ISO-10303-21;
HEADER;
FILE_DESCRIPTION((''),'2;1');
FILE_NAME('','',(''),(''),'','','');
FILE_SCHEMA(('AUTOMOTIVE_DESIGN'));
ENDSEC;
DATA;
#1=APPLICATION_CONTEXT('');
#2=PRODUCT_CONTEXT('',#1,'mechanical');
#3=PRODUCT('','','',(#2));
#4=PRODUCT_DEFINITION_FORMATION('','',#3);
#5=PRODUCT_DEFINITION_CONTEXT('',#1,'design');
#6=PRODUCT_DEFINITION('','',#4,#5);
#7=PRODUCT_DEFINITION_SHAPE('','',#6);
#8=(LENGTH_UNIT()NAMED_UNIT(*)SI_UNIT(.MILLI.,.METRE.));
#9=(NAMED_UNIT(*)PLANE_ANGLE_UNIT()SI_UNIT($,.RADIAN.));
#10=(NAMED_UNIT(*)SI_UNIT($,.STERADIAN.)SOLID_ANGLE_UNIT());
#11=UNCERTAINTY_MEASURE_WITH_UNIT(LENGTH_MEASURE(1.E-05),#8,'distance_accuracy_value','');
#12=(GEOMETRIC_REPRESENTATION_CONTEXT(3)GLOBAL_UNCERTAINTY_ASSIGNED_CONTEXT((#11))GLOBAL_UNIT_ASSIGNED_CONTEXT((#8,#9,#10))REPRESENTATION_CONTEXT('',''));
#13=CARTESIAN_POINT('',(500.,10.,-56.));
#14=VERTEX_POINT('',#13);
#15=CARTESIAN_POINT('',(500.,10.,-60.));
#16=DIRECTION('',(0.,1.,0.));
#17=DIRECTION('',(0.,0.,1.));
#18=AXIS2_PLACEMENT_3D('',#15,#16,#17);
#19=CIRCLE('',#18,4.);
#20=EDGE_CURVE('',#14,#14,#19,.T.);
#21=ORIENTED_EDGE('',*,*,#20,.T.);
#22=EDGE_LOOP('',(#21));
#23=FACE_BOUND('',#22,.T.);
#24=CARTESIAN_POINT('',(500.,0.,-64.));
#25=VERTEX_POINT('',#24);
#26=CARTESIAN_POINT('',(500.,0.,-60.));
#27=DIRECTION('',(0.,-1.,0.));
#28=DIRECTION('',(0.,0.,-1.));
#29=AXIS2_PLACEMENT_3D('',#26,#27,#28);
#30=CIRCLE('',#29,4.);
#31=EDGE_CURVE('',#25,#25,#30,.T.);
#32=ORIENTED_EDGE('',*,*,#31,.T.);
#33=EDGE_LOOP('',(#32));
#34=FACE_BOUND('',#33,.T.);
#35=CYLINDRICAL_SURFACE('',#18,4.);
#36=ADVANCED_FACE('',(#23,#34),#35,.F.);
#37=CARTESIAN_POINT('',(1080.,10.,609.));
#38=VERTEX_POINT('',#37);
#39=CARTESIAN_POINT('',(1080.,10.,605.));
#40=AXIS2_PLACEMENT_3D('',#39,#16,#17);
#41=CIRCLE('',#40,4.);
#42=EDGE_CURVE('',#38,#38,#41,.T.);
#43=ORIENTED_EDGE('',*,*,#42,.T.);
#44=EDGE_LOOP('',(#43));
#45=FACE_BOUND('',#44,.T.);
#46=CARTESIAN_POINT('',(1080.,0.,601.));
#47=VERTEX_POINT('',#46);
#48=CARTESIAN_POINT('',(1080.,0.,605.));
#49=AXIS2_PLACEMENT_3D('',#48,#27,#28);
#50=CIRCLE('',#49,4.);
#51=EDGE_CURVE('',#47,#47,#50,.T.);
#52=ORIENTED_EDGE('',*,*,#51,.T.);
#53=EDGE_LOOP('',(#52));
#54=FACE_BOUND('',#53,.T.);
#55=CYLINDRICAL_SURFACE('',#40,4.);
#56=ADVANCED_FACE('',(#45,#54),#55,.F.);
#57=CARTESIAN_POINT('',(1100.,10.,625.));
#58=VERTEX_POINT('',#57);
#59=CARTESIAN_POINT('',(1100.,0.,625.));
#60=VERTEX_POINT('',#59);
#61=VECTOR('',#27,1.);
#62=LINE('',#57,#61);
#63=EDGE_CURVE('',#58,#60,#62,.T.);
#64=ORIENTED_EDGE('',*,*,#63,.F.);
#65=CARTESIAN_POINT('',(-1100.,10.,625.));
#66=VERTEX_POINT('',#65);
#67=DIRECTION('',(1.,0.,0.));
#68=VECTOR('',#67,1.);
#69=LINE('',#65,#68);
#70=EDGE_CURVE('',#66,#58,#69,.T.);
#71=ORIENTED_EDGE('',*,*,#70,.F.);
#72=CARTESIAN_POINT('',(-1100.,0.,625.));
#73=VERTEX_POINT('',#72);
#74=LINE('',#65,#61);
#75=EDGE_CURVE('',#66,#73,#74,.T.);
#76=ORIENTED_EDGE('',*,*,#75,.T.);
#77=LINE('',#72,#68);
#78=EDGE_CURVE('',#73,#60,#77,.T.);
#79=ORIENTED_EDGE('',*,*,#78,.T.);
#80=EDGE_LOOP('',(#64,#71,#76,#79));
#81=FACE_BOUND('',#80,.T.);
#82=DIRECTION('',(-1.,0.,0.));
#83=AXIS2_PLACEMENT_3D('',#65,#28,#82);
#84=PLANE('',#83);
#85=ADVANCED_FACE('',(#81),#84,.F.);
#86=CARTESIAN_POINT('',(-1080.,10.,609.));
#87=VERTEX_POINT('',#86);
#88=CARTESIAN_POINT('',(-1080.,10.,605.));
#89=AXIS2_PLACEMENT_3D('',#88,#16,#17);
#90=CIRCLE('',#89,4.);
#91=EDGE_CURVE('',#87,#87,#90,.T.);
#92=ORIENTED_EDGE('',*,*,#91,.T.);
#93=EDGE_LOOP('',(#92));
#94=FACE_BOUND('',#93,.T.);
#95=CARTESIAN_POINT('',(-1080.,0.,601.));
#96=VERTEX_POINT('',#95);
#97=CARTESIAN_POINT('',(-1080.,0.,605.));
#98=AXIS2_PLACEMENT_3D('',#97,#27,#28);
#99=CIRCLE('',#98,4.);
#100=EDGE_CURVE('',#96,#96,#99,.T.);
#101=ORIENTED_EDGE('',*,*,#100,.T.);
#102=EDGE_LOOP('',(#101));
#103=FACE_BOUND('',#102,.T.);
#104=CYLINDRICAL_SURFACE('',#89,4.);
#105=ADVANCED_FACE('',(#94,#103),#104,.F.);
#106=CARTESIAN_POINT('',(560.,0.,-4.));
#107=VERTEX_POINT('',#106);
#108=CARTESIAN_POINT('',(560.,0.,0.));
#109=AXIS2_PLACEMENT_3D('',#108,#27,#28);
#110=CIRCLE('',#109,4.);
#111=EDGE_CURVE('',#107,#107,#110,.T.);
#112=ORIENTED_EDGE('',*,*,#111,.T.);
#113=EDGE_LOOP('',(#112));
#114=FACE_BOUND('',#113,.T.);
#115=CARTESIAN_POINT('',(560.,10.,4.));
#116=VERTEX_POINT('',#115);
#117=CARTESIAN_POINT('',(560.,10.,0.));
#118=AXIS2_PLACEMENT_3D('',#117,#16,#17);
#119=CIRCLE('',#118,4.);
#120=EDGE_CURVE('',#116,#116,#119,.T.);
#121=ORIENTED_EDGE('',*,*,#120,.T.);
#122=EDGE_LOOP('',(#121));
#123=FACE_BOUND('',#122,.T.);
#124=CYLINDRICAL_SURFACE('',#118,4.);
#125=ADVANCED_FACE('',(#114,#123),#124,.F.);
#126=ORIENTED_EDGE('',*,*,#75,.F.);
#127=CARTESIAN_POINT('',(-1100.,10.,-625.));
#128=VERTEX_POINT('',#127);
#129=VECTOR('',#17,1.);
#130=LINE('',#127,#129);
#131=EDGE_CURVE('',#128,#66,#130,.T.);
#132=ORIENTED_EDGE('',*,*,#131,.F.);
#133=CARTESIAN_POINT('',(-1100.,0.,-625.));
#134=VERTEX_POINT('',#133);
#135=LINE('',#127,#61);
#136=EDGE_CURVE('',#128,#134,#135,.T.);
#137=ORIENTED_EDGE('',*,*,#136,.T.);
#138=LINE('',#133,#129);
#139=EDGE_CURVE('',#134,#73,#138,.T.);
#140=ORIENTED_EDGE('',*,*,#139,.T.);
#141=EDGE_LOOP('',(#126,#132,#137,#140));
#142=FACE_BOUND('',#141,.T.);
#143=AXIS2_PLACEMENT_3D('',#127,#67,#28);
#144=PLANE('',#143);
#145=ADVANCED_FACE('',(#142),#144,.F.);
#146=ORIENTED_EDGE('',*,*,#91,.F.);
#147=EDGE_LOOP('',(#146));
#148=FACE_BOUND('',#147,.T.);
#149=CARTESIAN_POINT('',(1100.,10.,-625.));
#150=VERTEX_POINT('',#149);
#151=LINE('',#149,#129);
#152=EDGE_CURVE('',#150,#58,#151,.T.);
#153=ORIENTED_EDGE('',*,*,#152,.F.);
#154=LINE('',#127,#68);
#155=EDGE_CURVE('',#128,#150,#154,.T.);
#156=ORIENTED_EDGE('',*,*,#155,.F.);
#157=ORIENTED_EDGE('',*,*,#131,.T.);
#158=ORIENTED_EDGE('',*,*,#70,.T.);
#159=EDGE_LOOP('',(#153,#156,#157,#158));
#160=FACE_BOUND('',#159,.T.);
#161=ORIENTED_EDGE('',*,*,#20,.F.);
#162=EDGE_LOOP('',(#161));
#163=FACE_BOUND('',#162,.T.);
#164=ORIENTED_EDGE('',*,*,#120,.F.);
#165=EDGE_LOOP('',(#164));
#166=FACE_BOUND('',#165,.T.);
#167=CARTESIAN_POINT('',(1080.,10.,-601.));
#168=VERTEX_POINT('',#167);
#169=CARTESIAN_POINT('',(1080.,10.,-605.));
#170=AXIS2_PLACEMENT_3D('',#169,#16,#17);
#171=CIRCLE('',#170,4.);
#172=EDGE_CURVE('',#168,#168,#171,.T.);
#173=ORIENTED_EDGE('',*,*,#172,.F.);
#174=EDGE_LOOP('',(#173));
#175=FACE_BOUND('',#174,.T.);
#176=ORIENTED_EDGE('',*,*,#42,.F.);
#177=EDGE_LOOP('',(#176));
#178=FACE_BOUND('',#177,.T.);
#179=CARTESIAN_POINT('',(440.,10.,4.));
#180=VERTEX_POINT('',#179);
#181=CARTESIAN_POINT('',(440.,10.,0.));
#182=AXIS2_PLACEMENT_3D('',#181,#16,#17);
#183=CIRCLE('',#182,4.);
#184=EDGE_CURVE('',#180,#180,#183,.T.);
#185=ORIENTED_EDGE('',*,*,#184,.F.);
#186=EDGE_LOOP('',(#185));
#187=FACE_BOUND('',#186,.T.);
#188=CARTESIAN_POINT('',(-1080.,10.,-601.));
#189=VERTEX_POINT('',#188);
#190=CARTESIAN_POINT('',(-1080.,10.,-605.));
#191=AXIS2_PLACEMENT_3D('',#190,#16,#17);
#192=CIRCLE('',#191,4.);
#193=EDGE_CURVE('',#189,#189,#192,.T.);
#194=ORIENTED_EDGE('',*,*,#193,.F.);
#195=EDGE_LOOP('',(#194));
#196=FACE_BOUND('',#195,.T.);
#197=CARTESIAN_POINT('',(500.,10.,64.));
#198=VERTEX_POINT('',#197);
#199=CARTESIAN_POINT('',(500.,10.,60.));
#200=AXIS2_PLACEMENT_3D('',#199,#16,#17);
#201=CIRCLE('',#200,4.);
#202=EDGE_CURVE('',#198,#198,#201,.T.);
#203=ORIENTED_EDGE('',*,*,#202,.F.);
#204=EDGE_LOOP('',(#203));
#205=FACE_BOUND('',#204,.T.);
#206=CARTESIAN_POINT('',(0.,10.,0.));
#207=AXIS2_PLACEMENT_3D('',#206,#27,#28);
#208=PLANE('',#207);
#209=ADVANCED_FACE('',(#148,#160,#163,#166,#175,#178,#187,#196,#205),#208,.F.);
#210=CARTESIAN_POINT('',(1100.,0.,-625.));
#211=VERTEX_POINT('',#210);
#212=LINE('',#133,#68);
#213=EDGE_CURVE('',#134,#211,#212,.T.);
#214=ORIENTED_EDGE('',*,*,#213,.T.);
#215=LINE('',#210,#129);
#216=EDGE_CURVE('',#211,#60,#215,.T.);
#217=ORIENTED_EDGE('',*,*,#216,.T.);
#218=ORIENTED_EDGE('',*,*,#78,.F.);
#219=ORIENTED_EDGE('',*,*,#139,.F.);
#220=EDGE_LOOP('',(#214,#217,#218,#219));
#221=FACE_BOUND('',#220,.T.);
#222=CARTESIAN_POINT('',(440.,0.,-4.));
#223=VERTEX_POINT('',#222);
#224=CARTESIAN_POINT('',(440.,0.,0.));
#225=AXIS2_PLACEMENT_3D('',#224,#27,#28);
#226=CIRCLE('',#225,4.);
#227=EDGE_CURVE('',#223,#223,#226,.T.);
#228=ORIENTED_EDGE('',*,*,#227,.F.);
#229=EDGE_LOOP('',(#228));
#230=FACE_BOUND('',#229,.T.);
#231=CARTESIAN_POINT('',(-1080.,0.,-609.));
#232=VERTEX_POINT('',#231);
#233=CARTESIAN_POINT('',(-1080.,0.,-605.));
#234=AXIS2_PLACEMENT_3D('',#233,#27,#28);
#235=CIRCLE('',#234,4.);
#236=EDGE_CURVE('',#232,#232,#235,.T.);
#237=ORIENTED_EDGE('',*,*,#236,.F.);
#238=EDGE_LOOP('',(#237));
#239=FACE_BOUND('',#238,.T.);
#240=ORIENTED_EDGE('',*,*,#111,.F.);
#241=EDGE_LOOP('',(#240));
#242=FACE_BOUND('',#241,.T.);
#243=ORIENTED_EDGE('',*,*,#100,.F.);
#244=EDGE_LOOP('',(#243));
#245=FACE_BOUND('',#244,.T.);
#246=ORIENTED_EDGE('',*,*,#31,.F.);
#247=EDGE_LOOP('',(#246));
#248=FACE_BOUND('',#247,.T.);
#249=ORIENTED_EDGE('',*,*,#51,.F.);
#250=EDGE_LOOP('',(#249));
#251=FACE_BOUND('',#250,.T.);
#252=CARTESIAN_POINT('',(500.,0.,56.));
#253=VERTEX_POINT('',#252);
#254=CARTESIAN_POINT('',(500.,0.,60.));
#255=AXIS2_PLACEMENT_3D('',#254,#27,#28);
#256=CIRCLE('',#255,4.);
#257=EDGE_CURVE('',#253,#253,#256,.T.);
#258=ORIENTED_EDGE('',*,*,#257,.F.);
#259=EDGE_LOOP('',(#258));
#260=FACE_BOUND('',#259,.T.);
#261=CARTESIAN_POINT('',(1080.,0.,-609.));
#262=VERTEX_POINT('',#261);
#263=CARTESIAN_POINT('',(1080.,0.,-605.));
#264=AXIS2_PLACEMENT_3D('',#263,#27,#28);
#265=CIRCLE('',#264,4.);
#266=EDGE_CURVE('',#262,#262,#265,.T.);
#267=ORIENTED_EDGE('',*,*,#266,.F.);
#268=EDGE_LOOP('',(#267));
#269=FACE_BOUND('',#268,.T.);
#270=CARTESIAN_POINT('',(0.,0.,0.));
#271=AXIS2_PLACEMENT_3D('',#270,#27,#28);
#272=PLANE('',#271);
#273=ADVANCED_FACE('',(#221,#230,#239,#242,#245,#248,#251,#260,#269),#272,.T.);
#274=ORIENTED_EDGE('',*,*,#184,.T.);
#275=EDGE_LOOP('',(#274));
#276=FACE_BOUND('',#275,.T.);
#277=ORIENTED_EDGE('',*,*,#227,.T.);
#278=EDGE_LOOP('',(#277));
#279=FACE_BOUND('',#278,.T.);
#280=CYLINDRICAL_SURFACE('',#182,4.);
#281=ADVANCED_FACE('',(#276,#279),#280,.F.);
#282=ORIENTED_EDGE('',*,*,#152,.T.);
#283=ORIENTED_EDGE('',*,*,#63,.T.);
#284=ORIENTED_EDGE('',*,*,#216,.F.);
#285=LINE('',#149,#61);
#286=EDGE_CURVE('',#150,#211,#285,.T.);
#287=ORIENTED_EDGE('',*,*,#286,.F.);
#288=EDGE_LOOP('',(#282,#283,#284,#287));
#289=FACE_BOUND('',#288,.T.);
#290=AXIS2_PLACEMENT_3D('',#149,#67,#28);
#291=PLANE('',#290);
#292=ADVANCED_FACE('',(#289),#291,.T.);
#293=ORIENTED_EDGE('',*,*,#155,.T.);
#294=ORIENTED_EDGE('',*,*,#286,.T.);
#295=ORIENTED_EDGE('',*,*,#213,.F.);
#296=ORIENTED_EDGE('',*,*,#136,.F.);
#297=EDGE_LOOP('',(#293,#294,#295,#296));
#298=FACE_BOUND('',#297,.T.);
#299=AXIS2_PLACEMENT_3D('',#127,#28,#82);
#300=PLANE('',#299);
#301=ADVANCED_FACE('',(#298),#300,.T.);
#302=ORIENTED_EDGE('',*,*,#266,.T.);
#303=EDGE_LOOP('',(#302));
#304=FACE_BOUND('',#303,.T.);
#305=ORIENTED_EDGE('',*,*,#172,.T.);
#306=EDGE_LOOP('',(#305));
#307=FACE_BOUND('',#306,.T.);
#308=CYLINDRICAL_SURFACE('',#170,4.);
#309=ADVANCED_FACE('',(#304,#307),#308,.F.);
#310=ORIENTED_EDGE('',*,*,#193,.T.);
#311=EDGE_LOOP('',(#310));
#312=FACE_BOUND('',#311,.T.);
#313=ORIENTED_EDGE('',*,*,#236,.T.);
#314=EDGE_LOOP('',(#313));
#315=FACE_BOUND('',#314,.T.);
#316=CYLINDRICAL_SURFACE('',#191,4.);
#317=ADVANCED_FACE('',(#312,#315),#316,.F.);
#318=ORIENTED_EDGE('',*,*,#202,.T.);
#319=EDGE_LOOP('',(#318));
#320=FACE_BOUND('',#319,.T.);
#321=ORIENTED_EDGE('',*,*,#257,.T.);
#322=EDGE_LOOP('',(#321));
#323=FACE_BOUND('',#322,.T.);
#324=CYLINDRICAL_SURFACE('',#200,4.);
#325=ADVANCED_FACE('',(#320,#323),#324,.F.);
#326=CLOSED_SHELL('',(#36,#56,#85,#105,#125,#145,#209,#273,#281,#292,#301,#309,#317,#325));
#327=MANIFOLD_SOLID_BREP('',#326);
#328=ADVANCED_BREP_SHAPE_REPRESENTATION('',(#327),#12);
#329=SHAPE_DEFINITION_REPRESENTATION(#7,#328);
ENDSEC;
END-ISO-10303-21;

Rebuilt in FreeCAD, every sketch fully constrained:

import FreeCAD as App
import Part
import Sketcher

V = App.Vector
Q = App.Units.Quantity


def add_polygon(sketch, points):
    """Adds a closed chain of lines whose ends are joined by coincident constraints."""
    first, n = sketch.GeometryCount, len(points)
    for a, b in zip(points, points[1:] + points[:1]):
        sketch.addGeometry(Part.LineSegment(App.Vector(*a, 0), App.Vector(*b, 0)), False)
    for i in range(n):
        sketch.addConstraint(Sketcher.Constraint("Coincident", first + i, 2, first + (i + 1) % n, 1))

doc = App.newDocument("Part")
body = doc.addObject("PartDesign::Body", "Body")

sketch1 = body.newObject("Sketcher::SketchObject", "Sketch")
sketch1.AttachmentSupport = (doc.getObject("XZ_Plane"), [""])
sketch1.MapMode = "FlatFace"
add_polygon(sketch1, [(-1100, -625), (-1100, 625), (1100, 625), (1100, -625)])
sketch1.addConstraint([
    Sketcher.Constraint("Vertical", 0),
    Sketcher.Constraint("Horizontal", 1),
    Sketcher.Constraint("Vertical", 2),
    Sketcher.Constraint("Horizontal", 3),
    Sketcher.Constraint("Symmetric", 0, 2, 2, 2, -1, 1),
    Sketcher.Constraint("DistanceX", 1, 1, 1, 2, Q("2200 mm")),
    Sketcher.Constraint("DistanceY", 0, 1, 0, 2, Q("1250 mm")),
])
pad1 = body.newObject("PartDesign::Pad", "Pad")
pad1.Profile = sketch1
pad1.Length = 10
pad1.Reversed = True

sketch2 = body.newObject("Sketcher::SketchObject", "Sketch001")
sketch2.AttachmentSupport = (doc.getObject("XZ_Plane"), [""])
sketch2.MapMode = "FlatFace"
sketch2.AttachmentOffset = App.Placement(V(0, 0, -10), App.Rotation())
sketch2.addGeometry([
    Part.Circle(V(-1080, -605, 0), V(0, 0, 1), 4),
    Part.Circle(V(1080, -605, 0), V(0, 0, 1), 4),
    Part.Circle(V(1080, 605, 0), V(0, 0, 1), 4),
    Part.Circle(V(-1080, 605, 0), V(0, 0, 1), 4),
], False)
sketch2.addConstraint([
    Sketcher.Constraint("Equal", 0, 1),
    Sketcher.Constraint("Equal", 1, 2),
    Sketcher.Constraint("Equal", 2, 3),
    Sketcher.Constraint("Symmetric", 0, 3, 2, 3, -1, 1),
    Sketcher.Constraint("Symmetric", 1, 3, 3, 3, -1, 1),
    Sketcher.Constraint("Symmetric", 0, 3, 1, 3, -2),
    Sketcher.Constraint("Diameter", 0, Q("8 mm")),
    Sketcher.Constraint("DistanceX", 0, 3, -1, 1, Q("1080 mm")),
    Sketcher.Constraint("DistanceY", 0, 3, -1, 1, Q("605 mm")),
])
doc.recompute()
hole = body.newObject("PartDesign::Hole", "Hole")
hole.Profile = sketch2
hole.ThreadType = "None"
hole.Diameter = 8
hole.DepthType = "Dimension"
hole.Depth = 20
hole.DrillPoint = "Angled"
hole.DrillPointAngle = 118
hole.Reversed = True

sketch3 = body.newObject("Sketcher::SketchObject", "Sketch002")
sketch3.AttachmentSupport = (doc.getObject("XZ_Plane"), [""])
sketch3.MapMode = "FlatFace"
sketch3.AttachmentOffset = App.Placement(V(0, 0, -10), App.Rotation())
sketch3.addGeometry([
    Part.Circle(V(500, -60, 0), V(0, 0, 1), 4),
    Part.Circle(V(440, 0, 0), V(0, 0, 1), 4),
    Part.Circle(V(500, 60, 0), V(0, 0, 1), 4),
    Part.Circle(V(560, 0, 0), V(0, 0, 1), 4),
], False)
sketch3.addConstraint([
    Sketcher.Constraint("Equal", 0, 1),
    Sketcher.Constraint("Equal", 1, 2),
    Sketcher.Constraint("Equal", 2, 3),
    Sketcher.Constraint("Symmetric", 0, 3, 2, 3, -1),
    Sketcher.Constraint("PointOnObject", 1, 3, -1),
    Sketcher.Constraint("PointOnObject", 3, 3, -1),
    Sketcher.Constraint("Diameter", 0, Q("8 mm")),
    Sketcher.Constraint("DistanceX", -1, 1, 0, 3, Q("500 mm")),
    Sketcher.Constraint("DistanceY", 0, 3, -1, 1, Q("60 mm")),
    Sketcher.Constraint("DistanceX", -1, 1, 1, 3, Q("440 mm")),
    Sketcher.Constraint("DistanceX", -1, 1, 3, 3, Q("560 mm")),
])
doc.recompute()
hole2 = body.newObject("PartDesign::Hole", "Hole001")
hole2.Profile = sketch3
hole2.ThreadType = "None"
hole2.Diameter = 8
hole2.DepthType = "Dimension"
hole2.Depth = 20
hole2.DrillPoint = "Angled"
hole2.DrillPointAngle = 118
hole2.Reversed = True

doc.recompute()
